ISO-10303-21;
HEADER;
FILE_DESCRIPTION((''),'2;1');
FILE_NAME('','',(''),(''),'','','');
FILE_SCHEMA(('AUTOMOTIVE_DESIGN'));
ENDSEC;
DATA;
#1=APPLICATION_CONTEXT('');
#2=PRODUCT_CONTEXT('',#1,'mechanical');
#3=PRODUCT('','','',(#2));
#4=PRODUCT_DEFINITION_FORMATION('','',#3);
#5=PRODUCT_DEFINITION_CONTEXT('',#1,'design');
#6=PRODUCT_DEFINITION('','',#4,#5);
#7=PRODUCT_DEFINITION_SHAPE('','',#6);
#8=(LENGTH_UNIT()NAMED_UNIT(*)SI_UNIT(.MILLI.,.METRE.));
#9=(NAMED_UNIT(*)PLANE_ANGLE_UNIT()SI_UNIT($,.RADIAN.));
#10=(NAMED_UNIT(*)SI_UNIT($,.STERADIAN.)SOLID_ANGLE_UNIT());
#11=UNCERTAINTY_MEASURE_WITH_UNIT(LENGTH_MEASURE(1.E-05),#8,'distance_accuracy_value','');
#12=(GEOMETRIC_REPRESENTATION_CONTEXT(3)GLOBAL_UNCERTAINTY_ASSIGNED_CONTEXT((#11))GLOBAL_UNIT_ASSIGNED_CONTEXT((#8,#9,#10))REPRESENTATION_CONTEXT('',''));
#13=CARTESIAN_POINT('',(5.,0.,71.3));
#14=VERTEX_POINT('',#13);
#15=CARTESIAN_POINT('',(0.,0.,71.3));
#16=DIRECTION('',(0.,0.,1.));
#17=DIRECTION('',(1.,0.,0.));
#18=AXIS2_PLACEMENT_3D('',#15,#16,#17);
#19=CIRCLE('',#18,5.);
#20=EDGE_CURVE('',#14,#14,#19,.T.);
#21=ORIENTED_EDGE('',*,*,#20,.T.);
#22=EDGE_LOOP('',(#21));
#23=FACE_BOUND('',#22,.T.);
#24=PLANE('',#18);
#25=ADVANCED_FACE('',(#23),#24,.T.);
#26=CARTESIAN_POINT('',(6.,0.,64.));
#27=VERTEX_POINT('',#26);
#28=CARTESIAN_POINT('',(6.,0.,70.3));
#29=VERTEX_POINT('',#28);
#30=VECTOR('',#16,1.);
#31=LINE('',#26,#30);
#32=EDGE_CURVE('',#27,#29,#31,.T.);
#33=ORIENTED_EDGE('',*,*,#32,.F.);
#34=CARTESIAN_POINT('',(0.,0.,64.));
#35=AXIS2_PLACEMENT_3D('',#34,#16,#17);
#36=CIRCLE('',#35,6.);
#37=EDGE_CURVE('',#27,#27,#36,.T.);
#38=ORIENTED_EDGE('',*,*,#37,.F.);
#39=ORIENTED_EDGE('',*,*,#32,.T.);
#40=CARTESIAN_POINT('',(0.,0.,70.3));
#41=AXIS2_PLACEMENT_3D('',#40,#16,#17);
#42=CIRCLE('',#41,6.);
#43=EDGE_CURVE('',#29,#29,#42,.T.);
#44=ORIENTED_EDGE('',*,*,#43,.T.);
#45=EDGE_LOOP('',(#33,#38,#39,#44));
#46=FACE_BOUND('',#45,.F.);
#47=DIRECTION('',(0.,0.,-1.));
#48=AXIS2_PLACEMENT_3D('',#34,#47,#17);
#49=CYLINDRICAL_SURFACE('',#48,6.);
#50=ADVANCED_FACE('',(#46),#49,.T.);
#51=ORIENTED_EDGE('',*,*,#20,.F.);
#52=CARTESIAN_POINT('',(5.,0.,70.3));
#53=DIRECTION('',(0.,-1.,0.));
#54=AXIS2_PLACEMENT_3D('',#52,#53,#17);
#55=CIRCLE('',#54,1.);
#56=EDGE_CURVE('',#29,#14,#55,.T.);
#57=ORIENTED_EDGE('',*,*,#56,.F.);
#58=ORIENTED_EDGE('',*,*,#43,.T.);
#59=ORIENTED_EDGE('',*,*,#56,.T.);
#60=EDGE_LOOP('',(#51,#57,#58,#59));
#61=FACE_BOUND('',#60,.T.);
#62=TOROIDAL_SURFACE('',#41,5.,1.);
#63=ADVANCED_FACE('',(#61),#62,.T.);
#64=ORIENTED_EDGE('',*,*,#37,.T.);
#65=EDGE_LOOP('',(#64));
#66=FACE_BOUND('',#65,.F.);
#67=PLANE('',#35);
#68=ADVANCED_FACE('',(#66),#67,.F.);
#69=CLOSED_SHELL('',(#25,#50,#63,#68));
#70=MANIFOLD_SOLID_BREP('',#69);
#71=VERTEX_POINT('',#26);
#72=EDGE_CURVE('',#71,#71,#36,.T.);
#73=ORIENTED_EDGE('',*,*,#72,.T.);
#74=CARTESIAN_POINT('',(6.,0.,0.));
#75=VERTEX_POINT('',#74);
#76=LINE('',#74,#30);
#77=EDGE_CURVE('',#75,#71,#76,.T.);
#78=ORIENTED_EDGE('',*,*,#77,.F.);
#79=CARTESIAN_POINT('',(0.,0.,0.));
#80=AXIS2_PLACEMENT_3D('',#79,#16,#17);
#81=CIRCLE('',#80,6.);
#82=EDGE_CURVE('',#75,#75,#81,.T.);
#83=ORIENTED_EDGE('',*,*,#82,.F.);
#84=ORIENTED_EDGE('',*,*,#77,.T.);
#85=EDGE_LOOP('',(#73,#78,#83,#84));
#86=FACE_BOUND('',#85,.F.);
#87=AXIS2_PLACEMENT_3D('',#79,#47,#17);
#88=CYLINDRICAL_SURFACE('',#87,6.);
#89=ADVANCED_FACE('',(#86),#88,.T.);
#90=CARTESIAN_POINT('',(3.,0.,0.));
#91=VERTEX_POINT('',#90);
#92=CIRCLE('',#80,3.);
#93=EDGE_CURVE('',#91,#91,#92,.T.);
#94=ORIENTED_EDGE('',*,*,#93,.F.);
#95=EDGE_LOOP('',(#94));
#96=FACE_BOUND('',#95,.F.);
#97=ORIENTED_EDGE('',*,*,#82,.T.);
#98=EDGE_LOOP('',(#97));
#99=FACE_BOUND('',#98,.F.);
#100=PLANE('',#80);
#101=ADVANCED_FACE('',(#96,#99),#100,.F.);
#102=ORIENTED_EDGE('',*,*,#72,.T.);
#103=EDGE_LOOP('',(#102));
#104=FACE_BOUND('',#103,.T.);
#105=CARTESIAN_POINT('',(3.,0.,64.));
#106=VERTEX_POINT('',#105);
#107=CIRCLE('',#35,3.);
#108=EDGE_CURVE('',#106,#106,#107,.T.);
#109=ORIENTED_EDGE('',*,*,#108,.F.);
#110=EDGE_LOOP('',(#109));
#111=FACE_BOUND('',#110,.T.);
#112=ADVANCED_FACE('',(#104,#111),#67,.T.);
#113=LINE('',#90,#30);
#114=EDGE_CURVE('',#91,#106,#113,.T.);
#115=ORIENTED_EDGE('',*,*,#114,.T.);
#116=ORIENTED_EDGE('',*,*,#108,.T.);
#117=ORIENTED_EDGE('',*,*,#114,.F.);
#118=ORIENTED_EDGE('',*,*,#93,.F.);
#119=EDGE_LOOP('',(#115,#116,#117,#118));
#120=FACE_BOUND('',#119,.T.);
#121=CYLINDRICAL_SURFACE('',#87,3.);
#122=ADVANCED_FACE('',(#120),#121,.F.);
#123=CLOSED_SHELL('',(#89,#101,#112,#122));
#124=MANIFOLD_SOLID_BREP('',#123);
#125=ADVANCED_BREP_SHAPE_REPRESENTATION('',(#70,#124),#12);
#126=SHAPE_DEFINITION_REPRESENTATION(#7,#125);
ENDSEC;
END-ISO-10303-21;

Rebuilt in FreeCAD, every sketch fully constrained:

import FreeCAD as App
import Part
import Sketcher

V = App.Vector


def edges_at(feature, points):
    """Names of the edges that pass closest to the given points."""
    edges = feature.Shape.Edges
    near = lambda p: min(range(len(edges)), key=lambda i: edges[i].distToShape(Part.Vertex(*p))[0])
    return sorted({f"Edge{near(p) + 1}" for p in points})

doc = App.newDocument("Part")
body = doc.addObject("PartDesign::Body", "Body")

# Sketch on XY plane
sketch1 = body.newObject("Sketcher::SketchObject", "Sketch")
sketch1.AttachmentSupport = (doc.getObject("XY_Plane"), [""])
sketch1.MapMode = "FlatFace"
sketch1.addGeometry([
    Part.Circle(V(0, 0, 0), V(0, 0, 1), 6),
    Part.Circle(V(0, 0, 0), V(0, 0, 1), 3),
], False)
sketch1.addConstraint([
    Sketcher.Constraint("Coincident", 0, 3, -1, 1),
    Sketcher.Constraint("Coincident", 1, 3, -1, 1),
    Sketcher.Constraint("Diameter", 0, 12.0),
    Sketcher.Constraint("Diameter", 1, 6.0),
])
pad1 = body.newObject("PartDesign::Pad", "Pad")
pad1.Profile = sketch1
pad1.Length = 64
body2 = doc.addObject("PartDesign::Body", "Body001")

# Sketch on XY plane
sketch2 = body2.newObject("Sketcher::SketchObject", "Sketch001")
sketch2.AttachmentSupport = (doc.getObject("XY_Plane001"), [""])
sketch2.MapMode = "FlatFace"
sketch2.AttachmentOffset = App.Placement(V(0, 0, 64), App.Rotation())
sketch2.addGeometry(Part.Circle(V(0, 0, 0), V(0, 0, 1), 6), False)
sketch2.addConstraint([
    Sketcher.Constraint("Coincident", 0, 3, -1, 1),
    Sketcher.Constraint("Diameter", 0, 12.0),
])
pad2 = body2.newObject("PartDesign::Pad", "Pad001")
pad2.Profile = sketch2
pad2.Length = 7.3
doc.recompute()

fillet = body2.newObject("PartDesign::Fillet", "Fillet")
fillet.Base = (pad2, edges_at(pad2, [(-6, 0, 71.3)]))
fillet.Radius = 1

doc.recompute()
